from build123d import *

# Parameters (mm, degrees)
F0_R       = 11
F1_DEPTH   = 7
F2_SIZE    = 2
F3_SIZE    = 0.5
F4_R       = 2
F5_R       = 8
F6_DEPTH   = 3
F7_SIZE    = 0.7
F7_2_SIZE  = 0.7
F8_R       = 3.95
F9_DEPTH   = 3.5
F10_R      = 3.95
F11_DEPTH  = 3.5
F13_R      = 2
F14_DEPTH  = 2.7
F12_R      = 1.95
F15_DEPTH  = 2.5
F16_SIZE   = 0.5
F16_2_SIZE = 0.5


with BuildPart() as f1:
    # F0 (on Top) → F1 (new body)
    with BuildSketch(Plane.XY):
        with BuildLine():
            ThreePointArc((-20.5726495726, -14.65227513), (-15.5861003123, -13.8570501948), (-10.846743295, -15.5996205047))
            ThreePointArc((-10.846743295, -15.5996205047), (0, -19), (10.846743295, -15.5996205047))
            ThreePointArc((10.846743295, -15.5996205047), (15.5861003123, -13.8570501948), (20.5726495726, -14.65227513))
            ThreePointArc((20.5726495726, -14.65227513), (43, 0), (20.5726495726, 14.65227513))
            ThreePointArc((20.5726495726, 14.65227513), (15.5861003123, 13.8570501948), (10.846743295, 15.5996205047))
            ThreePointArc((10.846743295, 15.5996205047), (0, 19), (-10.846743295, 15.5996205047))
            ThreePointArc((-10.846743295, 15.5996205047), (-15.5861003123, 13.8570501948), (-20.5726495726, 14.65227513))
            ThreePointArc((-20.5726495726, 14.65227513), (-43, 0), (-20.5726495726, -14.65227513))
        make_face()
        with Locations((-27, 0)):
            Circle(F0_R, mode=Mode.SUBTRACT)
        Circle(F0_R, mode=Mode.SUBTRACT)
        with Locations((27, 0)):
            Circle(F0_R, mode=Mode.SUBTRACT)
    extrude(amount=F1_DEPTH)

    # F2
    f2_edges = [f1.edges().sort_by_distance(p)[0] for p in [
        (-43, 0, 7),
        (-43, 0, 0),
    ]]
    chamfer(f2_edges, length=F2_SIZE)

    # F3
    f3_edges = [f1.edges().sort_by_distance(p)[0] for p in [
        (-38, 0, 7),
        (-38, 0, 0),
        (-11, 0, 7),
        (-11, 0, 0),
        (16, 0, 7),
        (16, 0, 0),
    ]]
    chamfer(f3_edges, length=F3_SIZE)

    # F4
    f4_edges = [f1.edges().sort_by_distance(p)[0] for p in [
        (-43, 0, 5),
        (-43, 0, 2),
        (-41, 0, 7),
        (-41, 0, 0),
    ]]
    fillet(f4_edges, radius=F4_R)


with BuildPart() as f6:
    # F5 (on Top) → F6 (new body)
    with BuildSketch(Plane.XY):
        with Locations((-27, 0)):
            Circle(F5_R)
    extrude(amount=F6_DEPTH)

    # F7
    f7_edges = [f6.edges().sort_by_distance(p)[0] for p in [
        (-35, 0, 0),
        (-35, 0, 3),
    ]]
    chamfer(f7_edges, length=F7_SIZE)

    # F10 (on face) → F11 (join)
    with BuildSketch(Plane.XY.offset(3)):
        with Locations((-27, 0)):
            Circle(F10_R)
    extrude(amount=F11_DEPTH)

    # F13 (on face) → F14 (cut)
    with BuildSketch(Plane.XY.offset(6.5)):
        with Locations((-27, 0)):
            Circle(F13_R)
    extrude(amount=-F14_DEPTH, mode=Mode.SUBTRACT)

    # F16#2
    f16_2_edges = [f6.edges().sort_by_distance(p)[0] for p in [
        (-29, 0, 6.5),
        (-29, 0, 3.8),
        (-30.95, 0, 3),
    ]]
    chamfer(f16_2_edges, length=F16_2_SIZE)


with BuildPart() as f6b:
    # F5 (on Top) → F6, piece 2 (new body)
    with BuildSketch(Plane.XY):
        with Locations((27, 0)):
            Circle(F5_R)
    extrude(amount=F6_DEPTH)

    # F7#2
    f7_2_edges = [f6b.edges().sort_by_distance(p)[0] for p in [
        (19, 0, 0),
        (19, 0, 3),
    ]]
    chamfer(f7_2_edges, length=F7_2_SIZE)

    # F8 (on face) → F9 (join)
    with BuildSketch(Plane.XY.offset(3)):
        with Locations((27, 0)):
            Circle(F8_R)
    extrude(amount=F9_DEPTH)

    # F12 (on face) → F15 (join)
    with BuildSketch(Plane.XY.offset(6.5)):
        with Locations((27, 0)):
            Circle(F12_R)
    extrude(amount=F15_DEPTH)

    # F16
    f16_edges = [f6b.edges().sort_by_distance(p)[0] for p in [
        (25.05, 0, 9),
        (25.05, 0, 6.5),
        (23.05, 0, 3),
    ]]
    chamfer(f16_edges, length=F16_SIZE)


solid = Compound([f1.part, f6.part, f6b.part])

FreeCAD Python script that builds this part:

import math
import FreeCAD as App
import Part
import Sketcher
from FreeCAD import Vector
Q = App.Units.Quantity


def edges_at(feature, points):
    """Names of the edges that pass closest to the given points."""
    edges = feature.Shape.Edges
    near = lambda p: min(range(len(edges)), key=lambda i: edges[i].distToShape(Part.Vertex(*p))[0])
    return sorted({f"Edge{near(p) + 1}" for p in points})

doc = App.newDocument("Part")
body = doc.addObject("PartDesign::Body", "Body")

sketch1 = body.newObject("Sketcher::SketchObject", "Sketch")
sketch1.AttachmentSupport = (doc.getObject("XY_Plane"), [""])
sketch1.MapMode = "FlatFace"
sketch1.addGeometry([
    Part.ArcOfCircle(Part.Circle(Vector(-17, -24, 0), Vector(0, 0, 1), 10), math.radians(55), math.radians(114)),
    Part.ArcOfCircle(Part.Circle(Vector(0, 0, 0), Vector(0, 0, 1), 19), math.radians(-125), math.radians(-55)),
    Part.ArcOfCircle(Part.Circle(Vector(17, -24, 0), Vector(0, 0, 1), 10), math.radians(66), math.radians(125)),
    Part.ArcOfCircle(Part.Circle(Vector(27, 0, 0), Vector(0, 0, 1), 16), math.radians(-114), math.radians(114)),
    Part.ArcOfCircle(Part.Circle(Vector(17, 24, 0), Vector(0, 0, 1), 10), math.radians(-125), math.radians(-66)),
    Part.ArcOfCircle(Part.Circle(Vector(0, 0, 0), Vector(0, 0, 1), 19), math.radians(55), math.radians(125)),
    Part.ArcOfCircle(Part.Circle(Vector(-17, 24, 0), Vector(0, 0, 1), 10), math.radians(-114), math.radians(-55)),
    Part.ArcOfCircle(Part.Circle(Vector(-27, 0, 0), Vector(0, 0, 1), 16), math.radians(66), math.radians(294)),
    Part.Circle(Vector(-27, 0, 0), Vector(0, 0, 1), 11),
    Part.Circle(Vector(0, 0, 0), Vector(0, 0, 1), 11),
    Part.Circle(Vector(27, 0, 0), Vector(0, 0, 1), 11),
], False)
sketch1.addConstraint([
    Sketcher.Constraint("Tangent", 0, 1, 1, 1),
    Sketcher.Constraint("Tangent", 1, 2, 2, 2),
    Sketcher.Constraint("Tangent", 2, 1, 3, 1),
    Sketcher.Constraint("Tangent", 3, 2, 4, 2),
    Sketcher.Constraint("Tangent", 4, 1, 5, 1),
    Sketcher.Constraint("Tangent", 5, 2, 6, 2),
    Sketcher.Constraint("Tangent", 6, 1, 7, 1),
    Sketcher.Constraint("Tangent", 7, 2, 0, 2),
    Sketcher.Constraint("Coincident", 1, 3, -1, 1),
    Sketcher.Constraint("Coincident", 5, 3, -1, 1),
    Sketcher.Constraint("Coincident", 9, 3, -1, 1),
    Sketcher.Constraint("Coincident", 8, 3, 7, 3),
    Sketcher.Constraint("Coincident", 10, 3, 3, 3),
    Sketcher.Constraint("Equal", 0, 2),
    Sketcher.Constraint("Equal", 2, 4),
    Sketcher.Constraint("Equal", 1, 5),
    Sketcher.Constraint("Equal", 4, 6),
    Sketcher.Constraint("Equal", 3, 7),
    Sketcher.Constraint("Equal", 8, 9),
    Sketcher.Constraint("Equal", 9, 10),
    Sketcher.Constraint("Symmetric", 3, 3, 7, 3, -1, 1),
    Sketcher.Constraint("PointOnObject", 3, 3, -1),
    Sketcher.Constraint("Diameter", 8, Q("22 mm")),
    Sketcher.Constraint("Radius", 0, Q("10 mm")),
    Sketcher.Constraint("Radius", 1, Q("19 mm")),
    Sketcher.Constraint("Radius", 3, Q("16 mm")),
    Sketcher.Constraint("DistanceX", -1, 1, 3, 3, Q("27 mm")),
])
pad1 = body.newObject("PartDesign::Pad", "Pad")
pad1.Profile = sketch1
pad1.Length = 7
doc.recompute()

chamfer = body.newObject("PartDesign::Chamfer", "Chamfer")
chamfer.Base = (pad1, edges_at(pad1, [(-43, 0, 7), (-43, 0, 0)]))
chamfer.Size = 2
doc.recompute()

chamfer2 = body.newObject("PartDesign::Chamfer", "Chamfer001")
chamfer2.Base = (chamfer, edges_at(chamfer, [
    (-38, 0, 7),
    (-38, 0, 0),
    (-11, 0, 7),
    (-11, 0, 0),
    (16, 0, 7),
    (16, 0, 0),
]))
chamfer2.Size = 0.5
doc.recompute()

fillet = body.newObject("PartDesign::Fillet", "Fillet")
fillet.Base = (chamfer2, edges_at(chamfer2, [
    (-43, 0, 5),
    (-43, 0, 2),
    (-41, 0, 7),
    (-41, 0, 0),
]))
fillet.Radius = 2
body2 = doc.addObject("PartDesign::Body", "Body001")

sketch2 = body2.newObject("Sketcher::SketchObject", "Sketch001")
sketch2.AttachmentSupport = (doc.getObject("XY_Plane001"), [""])
sketch2.MapMode = "FlatFace"
sketch2.addGeometry(Part.Circle(Vector(-27, 0, 0), Vector(0, 0, 1), 8), False)
sketch2.addConstraint([
    Sketcher.Constraint("PointOnObject", 0, 3, -1),
    Sketcher.Constraint("Diameter", 0, Q("16 mm")),
    Sketcher.Constraint("DistanceX", 0, 3, -1, 1, Q("27 mm")),
])
pad2 = body2.newObject("PartDesign::Pad", "Pad001")
pad2.Profile = sketch2
pad2.Length = 3
doc.recompute()

chamfer3 = body2.newObject("PartDesign::Chamfer", "Chamfer002")
chamfer3.Base = (pad2, edges_at(pad2, [(-35, 0, 0), (-35, 0, 3)]))
chamfer3.Size = 0.7

sketch3 = body2.newObject("Sketcher::SketchObject", "Sketch002")
sketch3.AttachmentSupport = (doc.getObject("XY_Plane001"), [""])
sketch3.MapMode = "FlatFace"
sketch3.AttachmentOffset = App.Placement(Vector(0, 0, 3), App.Rotation())
sketch3.addGeometry(Part.Circle(Vector(-27, 0, 0), Vector(0, 0, 1), 4), False)
sketch3.addConstraint([
    Sketcher.Constraint("PointOnObject", 0, 3, -1),
    Sketcher.Constraint("Diameter", 0, Q("7.9 mm")),
    Sketcher.Constraint("DistanceX", 0, 3, -1, 1, Q("27 mm")),
])
pad3 = body2.newObject("PartDesign::Pad", "Pad002")
pad3.Profile = sketch3
pad3.Length = 3.5

sketch4 = body2.newObject("Sketcher::SketchObject", "Sketch003")
sketch4.AttachmentSupport = (doc.getObject("XY_Plane001"), [""])
sketch4.MapMode = "FlatFace"
sketch4.AttachmentOffset = App.Placement(Vector(0, 0, 6.5), App.Rotation())
sketch4.addGeometry(Part.Circle(Vector(-27, 0, 0), Vector(0, 0, 1), 2), False)
sketch4.addConstraint([
    Sketcher.Constraint("PointOnObject", 0, 3, -1),
    Sketcher.Constraint("Diameter", 0, Q("4 mm")),
    Sketcher.Constraint("DistanceX", 0, 3, -1, 1, Q("27 mm")),
])
pocket1 = body2.newObject("PartDesign::Pocket", "Pocket")
pocket1.Profile = sketch4
pocket1.Length = 2.7
doc.recompute()

chamfer4 = body2.newObject("PartDesign::Chamfer", "Chamfer003")
chamfer4.Base = (pocket1, edges_at(pocket1, [(-29, 0, 6.5), (-29, 0, 3.8), (-30.95, 0, 3)]))
chamfer4.Size = 0.5
body3 = doc.addObject("PartDesign::Body", "Body002")

sketch5 = body3.newObject("Sketcher::SketchObject", "Sketch004")
sketch5.AttachmentSupport = (doc.getObject("XY_Plane002"), [""])
sketch5.MapMode = "FlatFace"
sketch5.addGeometry(Part.Circle(Vector(27, 0, 0), Vector(0, 0, 1), 8), False)
sketch5.addConstraint([
    Sketcher.Constraint("PointOnObject", 0, 3, -1),
    Sketcher.Constraint("Diameter", 0, Q("16 mm")),
    Sketcher.Constraint("DistanceX", -1, 1, 0, 3, Q("27 mm")),
])
pad4 = body3.newObject("PartDesign::Pad", "Pad003")
pad4.Profile = sketch5
pad4.Length = 3
doc.recompute()

chamfer5 = body3.newObject("PartDesign::Chamfer", "Chamfer004")
chamfer5.Base = (pad4, edges_at(pad4, [(19, 0, 0), (19, 0, 3)]))
chamfer5.Size = 0.7

sketch6 = body3.newObject("Sketcher::SketchObject", "Sketch005")
sketch6.AttachmentSupport = (doc.getObject("XY_Plane002"), [""])
sketch6.MapMode = "FlatFace"
sketch6.AttachmentOffset = App.Placement(Vector(0, 0, 3), App.Rotation())
sketch6.addGeometry(Part.Circle(Vector(27, 0, 0), Vector(0, 0, 1), 4), False)
sketch6.addConstraint([
    Sketcher.Constraint("PointOnObject", 0, 3, -1),
    Sketcher.Constraint("Diameter", 0, Q("7.9 mm")),
    Sketcher.Constraint("DistanceX", -1, 1, 0, 3, Q("27 mm")),
])
pad5 = body3.newObject("PartDesign::Pad", "Pad004")
pad5.Profile = sketch6
pad5.Length = 3.5

sketch7 = body3.newObject("Sketcher::SketchObject", "Sketch006")
sketch7.AttachmentSupport = (doc.getObject("XY_Plane002"), [""])
sketch7.MapMode = "FlatFace"
sketch7.AttachmentOffset = App.Placement(Vector(0, 0, 6.5), App.Rotation())
sketch7.addGeometry(Part.Circle(Vector(27, 0, 0), Vector(0, 0, 1), 1.9), False)
sketch7.addConstraint([
    Sketcher.Constraint("PointOnObject", 0, 3, -1),
    Sketcher.Constraint("Diameter", 0, Q("3.9 mm")),
    Sketcher.Constraint("DistanceX", -1, 1, 0, 3, Q("27 mm")),
])
pad6 = body3.newObject("PartDesign::Pad", "Pad005")
pad6.Profile = sketch7
pad6.Length = 2.5
doc.recompute()

chamfer6 = body3.newObject("PartDesign::Chamfer", "Chamfer005")
chamfer6.Base = (pad6, edges_at(pad6, [(25.05, 0, 9), (25.05, 0, 6.5), (23.05, 0, 3)]))
chamfer6.Size = 0.5

doc.recompute()
